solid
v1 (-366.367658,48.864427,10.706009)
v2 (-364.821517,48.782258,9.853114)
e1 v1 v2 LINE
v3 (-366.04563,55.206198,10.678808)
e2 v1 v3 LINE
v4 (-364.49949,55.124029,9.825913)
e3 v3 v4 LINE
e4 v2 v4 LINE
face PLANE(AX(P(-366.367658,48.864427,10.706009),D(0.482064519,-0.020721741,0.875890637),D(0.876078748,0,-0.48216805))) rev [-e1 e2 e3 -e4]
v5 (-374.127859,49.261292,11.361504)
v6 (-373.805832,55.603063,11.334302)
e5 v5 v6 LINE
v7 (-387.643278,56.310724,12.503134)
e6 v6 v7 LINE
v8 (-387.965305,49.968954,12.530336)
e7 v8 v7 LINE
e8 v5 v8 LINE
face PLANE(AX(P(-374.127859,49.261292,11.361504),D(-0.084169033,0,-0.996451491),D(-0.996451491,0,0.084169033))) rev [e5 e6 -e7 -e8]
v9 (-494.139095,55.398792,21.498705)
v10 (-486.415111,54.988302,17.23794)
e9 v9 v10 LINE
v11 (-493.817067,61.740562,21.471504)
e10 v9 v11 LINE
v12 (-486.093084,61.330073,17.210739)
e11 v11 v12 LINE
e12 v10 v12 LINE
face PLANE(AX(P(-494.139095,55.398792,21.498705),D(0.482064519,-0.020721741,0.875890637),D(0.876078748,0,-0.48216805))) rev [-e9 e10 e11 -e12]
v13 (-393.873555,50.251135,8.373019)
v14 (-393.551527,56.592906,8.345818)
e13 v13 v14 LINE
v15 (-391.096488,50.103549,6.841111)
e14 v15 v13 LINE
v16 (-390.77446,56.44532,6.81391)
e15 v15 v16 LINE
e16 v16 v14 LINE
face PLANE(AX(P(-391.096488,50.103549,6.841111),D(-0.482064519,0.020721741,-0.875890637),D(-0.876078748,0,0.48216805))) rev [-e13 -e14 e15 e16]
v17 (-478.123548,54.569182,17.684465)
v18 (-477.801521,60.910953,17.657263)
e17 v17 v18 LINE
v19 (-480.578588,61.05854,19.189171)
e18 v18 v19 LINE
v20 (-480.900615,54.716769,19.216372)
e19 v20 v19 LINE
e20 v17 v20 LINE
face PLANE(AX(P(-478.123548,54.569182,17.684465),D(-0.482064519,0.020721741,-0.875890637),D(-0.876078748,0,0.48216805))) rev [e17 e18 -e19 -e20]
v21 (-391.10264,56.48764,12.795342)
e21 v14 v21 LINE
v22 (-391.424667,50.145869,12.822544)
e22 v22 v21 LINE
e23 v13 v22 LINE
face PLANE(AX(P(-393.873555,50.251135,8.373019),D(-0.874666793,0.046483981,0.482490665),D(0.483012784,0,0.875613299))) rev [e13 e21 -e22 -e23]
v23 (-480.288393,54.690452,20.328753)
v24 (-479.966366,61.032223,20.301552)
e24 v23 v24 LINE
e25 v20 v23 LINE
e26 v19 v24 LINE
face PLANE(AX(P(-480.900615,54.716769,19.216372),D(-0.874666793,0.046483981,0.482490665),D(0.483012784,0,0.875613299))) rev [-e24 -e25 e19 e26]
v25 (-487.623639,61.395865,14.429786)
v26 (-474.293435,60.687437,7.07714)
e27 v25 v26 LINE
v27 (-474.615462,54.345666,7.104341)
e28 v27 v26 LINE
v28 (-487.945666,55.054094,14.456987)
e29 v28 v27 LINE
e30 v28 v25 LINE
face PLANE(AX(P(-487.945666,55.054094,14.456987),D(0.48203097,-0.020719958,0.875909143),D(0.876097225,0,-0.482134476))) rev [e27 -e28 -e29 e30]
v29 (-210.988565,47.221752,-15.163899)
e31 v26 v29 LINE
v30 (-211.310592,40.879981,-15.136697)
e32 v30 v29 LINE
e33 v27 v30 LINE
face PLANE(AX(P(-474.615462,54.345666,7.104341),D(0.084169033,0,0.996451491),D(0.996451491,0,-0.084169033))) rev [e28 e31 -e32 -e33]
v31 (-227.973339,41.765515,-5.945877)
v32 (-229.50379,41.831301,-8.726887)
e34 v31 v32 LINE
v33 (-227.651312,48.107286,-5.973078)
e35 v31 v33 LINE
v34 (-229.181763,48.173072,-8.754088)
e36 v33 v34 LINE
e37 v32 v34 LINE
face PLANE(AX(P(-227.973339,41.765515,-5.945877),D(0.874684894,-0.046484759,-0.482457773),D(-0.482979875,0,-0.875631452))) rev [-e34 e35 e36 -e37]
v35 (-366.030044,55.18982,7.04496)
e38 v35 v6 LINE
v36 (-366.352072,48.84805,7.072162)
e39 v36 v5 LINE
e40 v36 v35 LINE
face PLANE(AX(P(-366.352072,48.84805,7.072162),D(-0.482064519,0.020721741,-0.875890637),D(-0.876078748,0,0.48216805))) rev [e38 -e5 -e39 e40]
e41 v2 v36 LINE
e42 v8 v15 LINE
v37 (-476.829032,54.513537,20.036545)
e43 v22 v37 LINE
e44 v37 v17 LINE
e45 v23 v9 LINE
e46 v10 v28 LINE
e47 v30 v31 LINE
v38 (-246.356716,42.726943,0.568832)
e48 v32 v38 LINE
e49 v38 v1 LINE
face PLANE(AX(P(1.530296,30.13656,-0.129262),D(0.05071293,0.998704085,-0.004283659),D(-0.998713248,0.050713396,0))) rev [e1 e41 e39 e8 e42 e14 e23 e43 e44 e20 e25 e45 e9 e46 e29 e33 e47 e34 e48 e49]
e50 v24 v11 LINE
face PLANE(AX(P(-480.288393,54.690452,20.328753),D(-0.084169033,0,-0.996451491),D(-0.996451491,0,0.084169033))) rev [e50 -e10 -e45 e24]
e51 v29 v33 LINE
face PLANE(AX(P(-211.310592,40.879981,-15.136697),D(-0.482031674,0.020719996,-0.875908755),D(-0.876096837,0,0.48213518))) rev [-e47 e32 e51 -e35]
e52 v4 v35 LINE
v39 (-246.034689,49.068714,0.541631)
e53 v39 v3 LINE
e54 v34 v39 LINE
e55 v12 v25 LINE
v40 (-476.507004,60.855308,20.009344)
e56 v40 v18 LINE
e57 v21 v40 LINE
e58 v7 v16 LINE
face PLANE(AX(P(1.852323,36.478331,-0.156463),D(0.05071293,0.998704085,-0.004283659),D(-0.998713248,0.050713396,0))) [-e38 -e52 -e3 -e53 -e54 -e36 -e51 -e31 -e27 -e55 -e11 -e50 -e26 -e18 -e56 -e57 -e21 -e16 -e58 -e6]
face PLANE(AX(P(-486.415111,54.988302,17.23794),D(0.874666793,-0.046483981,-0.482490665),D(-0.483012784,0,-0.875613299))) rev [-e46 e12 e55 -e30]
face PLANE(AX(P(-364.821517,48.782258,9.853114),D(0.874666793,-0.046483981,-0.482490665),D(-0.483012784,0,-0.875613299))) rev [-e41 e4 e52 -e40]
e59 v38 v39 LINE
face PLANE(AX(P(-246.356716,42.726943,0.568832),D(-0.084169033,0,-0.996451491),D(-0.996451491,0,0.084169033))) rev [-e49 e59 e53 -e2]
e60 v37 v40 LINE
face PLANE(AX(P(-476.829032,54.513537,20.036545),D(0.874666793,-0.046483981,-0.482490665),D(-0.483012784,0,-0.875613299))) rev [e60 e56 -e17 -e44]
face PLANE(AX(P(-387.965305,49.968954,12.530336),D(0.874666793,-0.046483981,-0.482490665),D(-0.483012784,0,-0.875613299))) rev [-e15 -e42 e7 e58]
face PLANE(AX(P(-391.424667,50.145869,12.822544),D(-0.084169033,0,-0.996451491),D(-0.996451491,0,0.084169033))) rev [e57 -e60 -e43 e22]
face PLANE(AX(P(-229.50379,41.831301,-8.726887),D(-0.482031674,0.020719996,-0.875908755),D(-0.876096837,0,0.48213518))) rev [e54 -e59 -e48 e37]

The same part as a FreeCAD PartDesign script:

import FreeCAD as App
import Part
import Sketcher
from FreeCAD import Vector
Q = App.Units.Quantity


def add_polygon(sketch, points):
    """Adds a closed chain of lines whose ends are joined by coincident constraints."""
    first, n = sketch.GeometryCount, len(points)
    for a, b in zip(points, points[1:] + points[:1]):
        sketch.addGeometry(Part.LineSegment(App.Vector(*a, 0), App.Vector(*b, 0)), False)
    for i in range(n):
        sketch.addConstraint(Sketcher.Constraint("Coincident", first + i, 2, first + (i + 1) % n, 1))

doc = App.newDocument("Part")
body = doc.addObject("PartDesign::Body", "Body")

# Sketch on an angled plane
sketch1 = body.newObject("Sketcher::SketchObject", "Sketch")
sketch1.Placement = App.Placement(Vector(1.858094, 36.591203, 26.227232), App.Rotation(Vector(0.998710331, -0.050701907, 0.002643986), Vector(-0.00242337, 0.004412219, 0.99998733), Vector(-0.05071293, -0.998704085, 0.004283659), "ZXY"))
add_polygon(sketch1, [(-496.323599, -3.443499), (-488.60003, -7.724739), (-490.139299, -10.501657), (-476.809809, -17.88964), (-213.220584, -40.827896), (-229.88244, -31.592904), (-231.421605, -34.36988), (-248.273629, -25.029486), (-368.414176, -14.574527), (-366.868118, -15.43152), (-368.407387, -18.208438), (-376.182758, -13.898484), (-390.035148, -12.693011), (-393.184158, -18.373981), (-395.961077, -16.834712), (-393.498245, -12.391643), (-478.994842, -4.951495), (-480.296729, -7.300163), (-483.073647, -5.760894), (-482.45794, -4.650126)])  # lines 0-19
sketch1.addConstraint([
    Sketcher.Constraint("Distance", 2, Q("0.6 in")),
    Sketcher.Constraint("Distance", 14, Q("0.2 in")),
    Sketcher.Constraint("Distance", 4, Q("0.75 in")),
    Sketcher.Constraint("Distance", 10, Q("0.35 in")),
    Sketcher.Constraint("Distance", 18, Q("0.05 in")),
    Sketcher.Constraint("Distance", 1, Q("0.125 in")),
    Sketcher.Constraint("Distance", 5, Q("0.125 in")),
    Sketcher.Constraint("Distance", 9, Q("0.125 in")),
    Sketcher.Constraint("Distance", 13, Q("0.125 in")),
    Sketcher.Constraint("Distance", 17, Q("0.125 in")),
    Sketcher.Constraint("Distance", 7, Q("120.594598 mm")),
    Sketcher.Constraint("DistanceX", 1, 2, -1, 1, Q("490.139299 mm")),
    Sketcher.Constraint("DistanceX", 19, 2, -1, 1, Q("496.323599 mm")),
    Sketcher.Constraint("DistanceY", 19, 2, -1, 1, Q("3.443499 mm")),
    Sketcher.Constraint("DistanceY", 2, 2, 0, 2, Q("10.1649 mm")),
    Sketcher.Constraint("DistanceX", 0, 2, 6, 2, Q("240.3264 mm")),
    Sketcher.Constraint("DistanceY", 9, 2, 2, 2, Q("0.318798 mm")),
    Sketcher.Constraint("DistanceX", 12, 2, 10, 2, Q("17.0014 mm")),
    Sketcher.Constraint("DistanceY", 13, 2, 11, 2, Q("4.141701 mm")),
    Sketcher.Constraint("DistanceX", 13, 2, 7, 2, Q("27.546901 mm")),
    Sketcher.Constraint("DistanceX", 0, 2, 16, 2, Q("8.303301 mm")),
    Sketcher.Constraint("DistanceY", 17, 2, 15, 2, Q("0.809399 mm")),
    Sketcher.Constraint("Distance", 8, Q("1.767691 mm")),
    Sketcher.Constraint("Distance", 12, Q("6.495359 mm")),
    Sketcher.Constraint("Distance", 16, Q("2.685359 mm")),
    Sketcher.Constraint("DistanceX", 0, 2, -1, 1, Q("488.60003 mm")),
    Sketcher.Constraint("DistanceY", 0, 2, -1, 1, Q("7.724739 mm")),
    Sketcher.Constraint("DistanceX", 4, 2, -1, 1, Q("229.88244 mm")),
    Sketcher.Constraint("DistanceY", 5, 2, -1, 1, Q("34.36988 mm")),
    Sketcher.Constraint("DistanceY", 8, 2, -1, 1, Q("15.43152 mm")),
    Sketcher.Constraint("DistanceX", 10, 2, -1, 1, Q("376.182758 mm")),
    Sketcher.Constraint("DistanceY", 11, 2, -1, 1, Q("12.693011 mm")),
    Sketcher.Constraint("DistanceY", 12, 2, -1, 1, Q("18.373981 mm")),
    Sketcher.Constraint("DistanceX", 18, 2, -1, 1, Q("482.45794 mm")),
    Sketcher.Constraint("DistanceY", 3, 2, 1, 2, Q("30.326238 mm")),
    Sketcher.Constraint("DistanceY", 3, 2, 4, 2, Q("9.234991 mm")),
    Sketcher.Constraint("DistanceY", 4, 2, 6, 2, Q("6.563418 mm")),
    Sketcher.Constraint("DistanceY", 11, 2, 14, 2, Q("0.301368 mm")),
    Sketcher.Constraint("DistanceY", 16, 2, 15, 2, Q("2.348669 mm")),
    Sketcher.Constraint("DistanceY", 13, 2, 16, 2, Q("9.534548 mm")),
])
pad1 = body.newObject("PartDesign::Pad", "Pad")
pad1.Profile = sketch1
pad1.Length = Q("0.25 in")

doc.recompute()
